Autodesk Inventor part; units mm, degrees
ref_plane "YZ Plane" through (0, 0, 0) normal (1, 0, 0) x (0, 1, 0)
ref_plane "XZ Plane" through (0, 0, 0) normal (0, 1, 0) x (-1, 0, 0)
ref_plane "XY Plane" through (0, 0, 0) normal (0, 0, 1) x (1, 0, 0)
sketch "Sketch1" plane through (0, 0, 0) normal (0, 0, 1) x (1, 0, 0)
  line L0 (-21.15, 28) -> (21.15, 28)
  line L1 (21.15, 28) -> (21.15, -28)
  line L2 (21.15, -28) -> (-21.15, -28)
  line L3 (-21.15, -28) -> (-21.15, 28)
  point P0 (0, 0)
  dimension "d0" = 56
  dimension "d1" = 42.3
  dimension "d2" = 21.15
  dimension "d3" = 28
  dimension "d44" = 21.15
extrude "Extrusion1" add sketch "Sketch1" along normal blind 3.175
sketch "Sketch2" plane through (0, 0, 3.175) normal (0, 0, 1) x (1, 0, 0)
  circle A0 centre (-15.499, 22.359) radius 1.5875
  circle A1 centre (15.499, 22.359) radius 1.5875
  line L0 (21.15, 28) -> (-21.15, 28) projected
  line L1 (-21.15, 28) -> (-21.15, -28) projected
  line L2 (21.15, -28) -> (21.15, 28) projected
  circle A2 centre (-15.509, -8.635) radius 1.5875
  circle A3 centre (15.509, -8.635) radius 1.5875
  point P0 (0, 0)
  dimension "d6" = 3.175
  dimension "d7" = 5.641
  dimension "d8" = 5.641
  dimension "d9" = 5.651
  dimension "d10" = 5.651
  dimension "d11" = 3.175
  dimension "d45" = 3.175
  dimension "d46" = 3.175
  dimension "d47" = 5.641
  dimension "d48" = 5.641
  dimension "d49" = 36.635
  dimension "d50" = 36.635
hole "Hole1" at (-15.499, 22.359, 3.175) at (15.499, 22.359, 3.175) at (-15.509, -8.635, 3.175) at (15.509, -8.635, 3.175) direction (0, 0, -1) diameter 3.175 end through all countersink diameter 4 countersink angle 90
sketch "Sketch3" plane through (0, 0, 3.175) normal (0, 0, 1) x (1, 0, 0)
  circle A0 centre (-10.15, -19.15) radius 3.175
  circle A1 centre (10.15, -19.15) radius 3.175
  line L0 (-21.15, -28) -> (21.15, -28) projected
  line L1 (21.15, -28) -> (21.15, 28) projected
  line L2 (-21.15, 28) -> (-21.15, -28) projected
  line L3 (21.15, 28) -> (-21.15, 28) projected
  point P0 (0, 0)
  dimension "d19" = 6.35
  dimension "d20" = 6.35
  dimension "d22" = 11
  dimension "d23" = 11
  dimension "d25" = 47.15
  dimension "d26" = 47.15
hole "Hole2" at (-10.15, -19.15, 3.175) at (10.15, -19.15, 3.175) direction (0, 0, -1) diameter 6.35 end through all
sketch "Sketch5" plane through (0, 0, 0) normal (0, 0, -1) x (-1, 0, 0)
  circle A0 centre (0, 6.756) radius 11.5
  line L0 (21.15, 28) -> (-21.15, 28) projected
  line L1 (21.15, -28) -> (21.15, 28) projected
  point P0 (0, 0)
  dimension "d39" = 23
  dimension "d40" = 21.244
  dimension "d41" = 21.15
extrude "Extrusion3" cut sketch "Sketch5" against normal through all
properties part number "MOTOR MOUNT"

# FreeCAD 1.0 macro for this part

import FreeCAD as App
import Part
import Sketcher
from FreeCAD import Vector
Q = App.Units.Quantity

doc = App.newDocument("Part")
body = doc.addObject("PartDesign::Body", "Body")

# Sketch on XY plane
sketch1 = doc.addObject("Sketcher::SketchObject", "Sketch")
body.addObject(sketch1)
sketch1.AttachmentSupport = (doc.XY_Plane, [""])
sketch1.MapMode = "FlatFace"
sketch1.addGeometry([
    Part.LineSegment(Vector(21, 28, 0), Vector(-21, 28, 0)),
    Part.LineSegment(Vector(-21, 28, 0), Vector(-21, -28, 0)),
    Part.LineSegment(Vector(-21, -28, 0), Vector(21, -28, 0)),
    Part.LineSegment(Vector(21, -28, 0), Vector(21, 28, 0)),
], False)
sketch1.addConstraint([
    Sketcher.Constraint("Coincident", 0, 2, 1, 1),
    Sketcher.Constraint("Coincident", 1, 2, 2, 1),
    Sketcher.Constraint("Coincident", 2, 2, 3, 1),
    Sketcher.Constraint("Coincident", 3, 2, 0, 1),
    Sketcher.Constraint("Horizontal", 0),
    Sketcher.Constraint("Vertical", 1),
    Sketcher.Constraint("Horizontal", 2),
    Sketcher.Constraint("Vertical", 3),
    Sketcher.Constraint("Symmetric", 0, 2, 2, 2, -1, 1),
    Sketcher.Constraint("DistanceY", 1, 2, 1, 1, Q("56 mm")),
    Sketcher.Constraint("DistanceX", 0, 2, 0, 1, Q("42.3 mm")),
])
pad1 = doc.addObject("PartDesign::Pad", "Pad")
body.addObject(pad1)
pad1.Profile = sketch1
pad1.Length = 3.175

# Sketch on XY plane
sketch2 = doc.addObject("Sketcher::SketchObject", "Sketch001")
body.addObject(sketch2)
sketch2.AttachmentSupport = (doc.XY_Plane, [""])
sketch2.MapMode = "FlatFace"
sketch2.AttachmentOffset = App.Placement(Vector(0, 0, 3.175), App.Rotation())
sketch2.addGeometry([
    Part.Circle(Vector(-15.5, 22.4, 0), Vector(0, 0, 1), 1.6),
    Part.Circle(Vector(15.5, 22.4, 0), Vector(0, 0, 1), 1.6),
    Part.Circle(Vector(-15.5, -8.6, 0), Vector(0, 0, 1), 1.6),
    Part.Circle(Vector(15.5, -8.6, 0), Vector(0, 0, 1), 1.6),
], False)
sketch2.addConstraint([
    Sketcher.Constraint("Equal", 0, 1),
    Sketcher.Constraint("Equal", 1, 2),
    Sketcher.Constraint("Equal", 2, 3),
    Sketcher.Constraint("Symmetric", 0, 3, 1, 3, -2),
    Sketcher.Constraint("Symmetric", 2, 3, 3, 3, -2),
    Sketcher.Constraint("Diameter", 0, Q("3.175 mm")),
    Sketcher.Constraint("DistanceX", 2, 3, 0, 3, Q("0.01 mm")),
    Sketcher.Constraint("DistanceX", 0, 3, -1, 1, Q("15.499 mm")),
    Sketcher.Constraint("DistanceY", -1, 1, 0, 3, Q("22.359 mm")),
    Sketcher.Constraint("DistanceY", 2, 3, -1, 1, Q("8.635 mm")),
])
doc.recompute()
hole = doc.addObject("PartDesign::Hole", "Hole")
body.addObject(hole)
hole.Profile = sketch2
hole.ThreadType = "None"
hole.Diameter = 3.175
hole.DepthType = "ThroughAll"
hole.HoleCutType = "Countersink"
hole.HoleCutDiameter = 4
hole.HoleCutCountersinkAngle = 90

# Sketch on XY plane
sketch3 = doc.addObject("Sketcher::SketchObject", "Sketch002")
body.addObject(sketch3)
sketch3.AttachmentSupport = (doc.XY_Plane, [""])
sketch3.MapMode = "FlatFace"
sketch3.AttachmentOffset = App.Placement(Vector(0, 0, 3.175), App.Rotation())
sketch3.addGeometry([
    Part.Circle(Vector(-10.2, -19.1, 0), Vector(0, 0, 1), 3.2),
    Part.Circle(Vector(10.2, -19.1, 0), Vector(0, 0, 1), 3.2),
], False)
sketch3.addConstraint([
    Sketcher.Constraint("Equal", 0, 1),
    Sketcher.Constraint("Symmetric", 0, 3, 1, 3, -2),
    Sketcher.Constraint("Diameter", 0, Q("6.35 mm")),
    Sketcher.Constraint("DistanceX", 0, 3, 1, 3, Q("20.3 mm")),
    Sketcher.Constraint("DistanceY", 0, 3, -1, 1, Q("19.15 mm")),
])
doc.recompute()
hole2 = doc.addObject("PartDesign::Hole", "Hole001")
body.addObject(hole2)
hole2.Profile = sketch3
hole2.ThreadType = "None"
hole2.Diameter = 6.35
hole2.DepthType = "ThroughAll"

# Sketch on XY plane
sketch4 = doc.addObject("Sketcher::SketchObject", "Sketch003")
body.addObject(sketch4)
sketch4.AttachmentSupport = (doc.XY_Plane, [""])
sketch4.MapMode = "FlatFace"
sketch4.addGeometry(Part.Circle(Vector(0, 7, 0), Vector(0, 0, 1), 12), False)
sketch4.addConstraint([
    Sketcher.Constraint("PointOnObject", 0, 3, -2),
    Sketcher.Constraint("Diameter", 0, Q("23 mm")),
    Sketcher.Constraint("DistanceY", -1, 1, 0, 3, Q("6.756 mm")),
])
pocket1 = doc.addObject("PartDesign::Pocket", "Pocket")
body.addObject(pocket1)
pocket1.Profile = sketch4
pocket1.Type = "ThroughAll"
pocket1.Reversed = True

doc.recompute()
